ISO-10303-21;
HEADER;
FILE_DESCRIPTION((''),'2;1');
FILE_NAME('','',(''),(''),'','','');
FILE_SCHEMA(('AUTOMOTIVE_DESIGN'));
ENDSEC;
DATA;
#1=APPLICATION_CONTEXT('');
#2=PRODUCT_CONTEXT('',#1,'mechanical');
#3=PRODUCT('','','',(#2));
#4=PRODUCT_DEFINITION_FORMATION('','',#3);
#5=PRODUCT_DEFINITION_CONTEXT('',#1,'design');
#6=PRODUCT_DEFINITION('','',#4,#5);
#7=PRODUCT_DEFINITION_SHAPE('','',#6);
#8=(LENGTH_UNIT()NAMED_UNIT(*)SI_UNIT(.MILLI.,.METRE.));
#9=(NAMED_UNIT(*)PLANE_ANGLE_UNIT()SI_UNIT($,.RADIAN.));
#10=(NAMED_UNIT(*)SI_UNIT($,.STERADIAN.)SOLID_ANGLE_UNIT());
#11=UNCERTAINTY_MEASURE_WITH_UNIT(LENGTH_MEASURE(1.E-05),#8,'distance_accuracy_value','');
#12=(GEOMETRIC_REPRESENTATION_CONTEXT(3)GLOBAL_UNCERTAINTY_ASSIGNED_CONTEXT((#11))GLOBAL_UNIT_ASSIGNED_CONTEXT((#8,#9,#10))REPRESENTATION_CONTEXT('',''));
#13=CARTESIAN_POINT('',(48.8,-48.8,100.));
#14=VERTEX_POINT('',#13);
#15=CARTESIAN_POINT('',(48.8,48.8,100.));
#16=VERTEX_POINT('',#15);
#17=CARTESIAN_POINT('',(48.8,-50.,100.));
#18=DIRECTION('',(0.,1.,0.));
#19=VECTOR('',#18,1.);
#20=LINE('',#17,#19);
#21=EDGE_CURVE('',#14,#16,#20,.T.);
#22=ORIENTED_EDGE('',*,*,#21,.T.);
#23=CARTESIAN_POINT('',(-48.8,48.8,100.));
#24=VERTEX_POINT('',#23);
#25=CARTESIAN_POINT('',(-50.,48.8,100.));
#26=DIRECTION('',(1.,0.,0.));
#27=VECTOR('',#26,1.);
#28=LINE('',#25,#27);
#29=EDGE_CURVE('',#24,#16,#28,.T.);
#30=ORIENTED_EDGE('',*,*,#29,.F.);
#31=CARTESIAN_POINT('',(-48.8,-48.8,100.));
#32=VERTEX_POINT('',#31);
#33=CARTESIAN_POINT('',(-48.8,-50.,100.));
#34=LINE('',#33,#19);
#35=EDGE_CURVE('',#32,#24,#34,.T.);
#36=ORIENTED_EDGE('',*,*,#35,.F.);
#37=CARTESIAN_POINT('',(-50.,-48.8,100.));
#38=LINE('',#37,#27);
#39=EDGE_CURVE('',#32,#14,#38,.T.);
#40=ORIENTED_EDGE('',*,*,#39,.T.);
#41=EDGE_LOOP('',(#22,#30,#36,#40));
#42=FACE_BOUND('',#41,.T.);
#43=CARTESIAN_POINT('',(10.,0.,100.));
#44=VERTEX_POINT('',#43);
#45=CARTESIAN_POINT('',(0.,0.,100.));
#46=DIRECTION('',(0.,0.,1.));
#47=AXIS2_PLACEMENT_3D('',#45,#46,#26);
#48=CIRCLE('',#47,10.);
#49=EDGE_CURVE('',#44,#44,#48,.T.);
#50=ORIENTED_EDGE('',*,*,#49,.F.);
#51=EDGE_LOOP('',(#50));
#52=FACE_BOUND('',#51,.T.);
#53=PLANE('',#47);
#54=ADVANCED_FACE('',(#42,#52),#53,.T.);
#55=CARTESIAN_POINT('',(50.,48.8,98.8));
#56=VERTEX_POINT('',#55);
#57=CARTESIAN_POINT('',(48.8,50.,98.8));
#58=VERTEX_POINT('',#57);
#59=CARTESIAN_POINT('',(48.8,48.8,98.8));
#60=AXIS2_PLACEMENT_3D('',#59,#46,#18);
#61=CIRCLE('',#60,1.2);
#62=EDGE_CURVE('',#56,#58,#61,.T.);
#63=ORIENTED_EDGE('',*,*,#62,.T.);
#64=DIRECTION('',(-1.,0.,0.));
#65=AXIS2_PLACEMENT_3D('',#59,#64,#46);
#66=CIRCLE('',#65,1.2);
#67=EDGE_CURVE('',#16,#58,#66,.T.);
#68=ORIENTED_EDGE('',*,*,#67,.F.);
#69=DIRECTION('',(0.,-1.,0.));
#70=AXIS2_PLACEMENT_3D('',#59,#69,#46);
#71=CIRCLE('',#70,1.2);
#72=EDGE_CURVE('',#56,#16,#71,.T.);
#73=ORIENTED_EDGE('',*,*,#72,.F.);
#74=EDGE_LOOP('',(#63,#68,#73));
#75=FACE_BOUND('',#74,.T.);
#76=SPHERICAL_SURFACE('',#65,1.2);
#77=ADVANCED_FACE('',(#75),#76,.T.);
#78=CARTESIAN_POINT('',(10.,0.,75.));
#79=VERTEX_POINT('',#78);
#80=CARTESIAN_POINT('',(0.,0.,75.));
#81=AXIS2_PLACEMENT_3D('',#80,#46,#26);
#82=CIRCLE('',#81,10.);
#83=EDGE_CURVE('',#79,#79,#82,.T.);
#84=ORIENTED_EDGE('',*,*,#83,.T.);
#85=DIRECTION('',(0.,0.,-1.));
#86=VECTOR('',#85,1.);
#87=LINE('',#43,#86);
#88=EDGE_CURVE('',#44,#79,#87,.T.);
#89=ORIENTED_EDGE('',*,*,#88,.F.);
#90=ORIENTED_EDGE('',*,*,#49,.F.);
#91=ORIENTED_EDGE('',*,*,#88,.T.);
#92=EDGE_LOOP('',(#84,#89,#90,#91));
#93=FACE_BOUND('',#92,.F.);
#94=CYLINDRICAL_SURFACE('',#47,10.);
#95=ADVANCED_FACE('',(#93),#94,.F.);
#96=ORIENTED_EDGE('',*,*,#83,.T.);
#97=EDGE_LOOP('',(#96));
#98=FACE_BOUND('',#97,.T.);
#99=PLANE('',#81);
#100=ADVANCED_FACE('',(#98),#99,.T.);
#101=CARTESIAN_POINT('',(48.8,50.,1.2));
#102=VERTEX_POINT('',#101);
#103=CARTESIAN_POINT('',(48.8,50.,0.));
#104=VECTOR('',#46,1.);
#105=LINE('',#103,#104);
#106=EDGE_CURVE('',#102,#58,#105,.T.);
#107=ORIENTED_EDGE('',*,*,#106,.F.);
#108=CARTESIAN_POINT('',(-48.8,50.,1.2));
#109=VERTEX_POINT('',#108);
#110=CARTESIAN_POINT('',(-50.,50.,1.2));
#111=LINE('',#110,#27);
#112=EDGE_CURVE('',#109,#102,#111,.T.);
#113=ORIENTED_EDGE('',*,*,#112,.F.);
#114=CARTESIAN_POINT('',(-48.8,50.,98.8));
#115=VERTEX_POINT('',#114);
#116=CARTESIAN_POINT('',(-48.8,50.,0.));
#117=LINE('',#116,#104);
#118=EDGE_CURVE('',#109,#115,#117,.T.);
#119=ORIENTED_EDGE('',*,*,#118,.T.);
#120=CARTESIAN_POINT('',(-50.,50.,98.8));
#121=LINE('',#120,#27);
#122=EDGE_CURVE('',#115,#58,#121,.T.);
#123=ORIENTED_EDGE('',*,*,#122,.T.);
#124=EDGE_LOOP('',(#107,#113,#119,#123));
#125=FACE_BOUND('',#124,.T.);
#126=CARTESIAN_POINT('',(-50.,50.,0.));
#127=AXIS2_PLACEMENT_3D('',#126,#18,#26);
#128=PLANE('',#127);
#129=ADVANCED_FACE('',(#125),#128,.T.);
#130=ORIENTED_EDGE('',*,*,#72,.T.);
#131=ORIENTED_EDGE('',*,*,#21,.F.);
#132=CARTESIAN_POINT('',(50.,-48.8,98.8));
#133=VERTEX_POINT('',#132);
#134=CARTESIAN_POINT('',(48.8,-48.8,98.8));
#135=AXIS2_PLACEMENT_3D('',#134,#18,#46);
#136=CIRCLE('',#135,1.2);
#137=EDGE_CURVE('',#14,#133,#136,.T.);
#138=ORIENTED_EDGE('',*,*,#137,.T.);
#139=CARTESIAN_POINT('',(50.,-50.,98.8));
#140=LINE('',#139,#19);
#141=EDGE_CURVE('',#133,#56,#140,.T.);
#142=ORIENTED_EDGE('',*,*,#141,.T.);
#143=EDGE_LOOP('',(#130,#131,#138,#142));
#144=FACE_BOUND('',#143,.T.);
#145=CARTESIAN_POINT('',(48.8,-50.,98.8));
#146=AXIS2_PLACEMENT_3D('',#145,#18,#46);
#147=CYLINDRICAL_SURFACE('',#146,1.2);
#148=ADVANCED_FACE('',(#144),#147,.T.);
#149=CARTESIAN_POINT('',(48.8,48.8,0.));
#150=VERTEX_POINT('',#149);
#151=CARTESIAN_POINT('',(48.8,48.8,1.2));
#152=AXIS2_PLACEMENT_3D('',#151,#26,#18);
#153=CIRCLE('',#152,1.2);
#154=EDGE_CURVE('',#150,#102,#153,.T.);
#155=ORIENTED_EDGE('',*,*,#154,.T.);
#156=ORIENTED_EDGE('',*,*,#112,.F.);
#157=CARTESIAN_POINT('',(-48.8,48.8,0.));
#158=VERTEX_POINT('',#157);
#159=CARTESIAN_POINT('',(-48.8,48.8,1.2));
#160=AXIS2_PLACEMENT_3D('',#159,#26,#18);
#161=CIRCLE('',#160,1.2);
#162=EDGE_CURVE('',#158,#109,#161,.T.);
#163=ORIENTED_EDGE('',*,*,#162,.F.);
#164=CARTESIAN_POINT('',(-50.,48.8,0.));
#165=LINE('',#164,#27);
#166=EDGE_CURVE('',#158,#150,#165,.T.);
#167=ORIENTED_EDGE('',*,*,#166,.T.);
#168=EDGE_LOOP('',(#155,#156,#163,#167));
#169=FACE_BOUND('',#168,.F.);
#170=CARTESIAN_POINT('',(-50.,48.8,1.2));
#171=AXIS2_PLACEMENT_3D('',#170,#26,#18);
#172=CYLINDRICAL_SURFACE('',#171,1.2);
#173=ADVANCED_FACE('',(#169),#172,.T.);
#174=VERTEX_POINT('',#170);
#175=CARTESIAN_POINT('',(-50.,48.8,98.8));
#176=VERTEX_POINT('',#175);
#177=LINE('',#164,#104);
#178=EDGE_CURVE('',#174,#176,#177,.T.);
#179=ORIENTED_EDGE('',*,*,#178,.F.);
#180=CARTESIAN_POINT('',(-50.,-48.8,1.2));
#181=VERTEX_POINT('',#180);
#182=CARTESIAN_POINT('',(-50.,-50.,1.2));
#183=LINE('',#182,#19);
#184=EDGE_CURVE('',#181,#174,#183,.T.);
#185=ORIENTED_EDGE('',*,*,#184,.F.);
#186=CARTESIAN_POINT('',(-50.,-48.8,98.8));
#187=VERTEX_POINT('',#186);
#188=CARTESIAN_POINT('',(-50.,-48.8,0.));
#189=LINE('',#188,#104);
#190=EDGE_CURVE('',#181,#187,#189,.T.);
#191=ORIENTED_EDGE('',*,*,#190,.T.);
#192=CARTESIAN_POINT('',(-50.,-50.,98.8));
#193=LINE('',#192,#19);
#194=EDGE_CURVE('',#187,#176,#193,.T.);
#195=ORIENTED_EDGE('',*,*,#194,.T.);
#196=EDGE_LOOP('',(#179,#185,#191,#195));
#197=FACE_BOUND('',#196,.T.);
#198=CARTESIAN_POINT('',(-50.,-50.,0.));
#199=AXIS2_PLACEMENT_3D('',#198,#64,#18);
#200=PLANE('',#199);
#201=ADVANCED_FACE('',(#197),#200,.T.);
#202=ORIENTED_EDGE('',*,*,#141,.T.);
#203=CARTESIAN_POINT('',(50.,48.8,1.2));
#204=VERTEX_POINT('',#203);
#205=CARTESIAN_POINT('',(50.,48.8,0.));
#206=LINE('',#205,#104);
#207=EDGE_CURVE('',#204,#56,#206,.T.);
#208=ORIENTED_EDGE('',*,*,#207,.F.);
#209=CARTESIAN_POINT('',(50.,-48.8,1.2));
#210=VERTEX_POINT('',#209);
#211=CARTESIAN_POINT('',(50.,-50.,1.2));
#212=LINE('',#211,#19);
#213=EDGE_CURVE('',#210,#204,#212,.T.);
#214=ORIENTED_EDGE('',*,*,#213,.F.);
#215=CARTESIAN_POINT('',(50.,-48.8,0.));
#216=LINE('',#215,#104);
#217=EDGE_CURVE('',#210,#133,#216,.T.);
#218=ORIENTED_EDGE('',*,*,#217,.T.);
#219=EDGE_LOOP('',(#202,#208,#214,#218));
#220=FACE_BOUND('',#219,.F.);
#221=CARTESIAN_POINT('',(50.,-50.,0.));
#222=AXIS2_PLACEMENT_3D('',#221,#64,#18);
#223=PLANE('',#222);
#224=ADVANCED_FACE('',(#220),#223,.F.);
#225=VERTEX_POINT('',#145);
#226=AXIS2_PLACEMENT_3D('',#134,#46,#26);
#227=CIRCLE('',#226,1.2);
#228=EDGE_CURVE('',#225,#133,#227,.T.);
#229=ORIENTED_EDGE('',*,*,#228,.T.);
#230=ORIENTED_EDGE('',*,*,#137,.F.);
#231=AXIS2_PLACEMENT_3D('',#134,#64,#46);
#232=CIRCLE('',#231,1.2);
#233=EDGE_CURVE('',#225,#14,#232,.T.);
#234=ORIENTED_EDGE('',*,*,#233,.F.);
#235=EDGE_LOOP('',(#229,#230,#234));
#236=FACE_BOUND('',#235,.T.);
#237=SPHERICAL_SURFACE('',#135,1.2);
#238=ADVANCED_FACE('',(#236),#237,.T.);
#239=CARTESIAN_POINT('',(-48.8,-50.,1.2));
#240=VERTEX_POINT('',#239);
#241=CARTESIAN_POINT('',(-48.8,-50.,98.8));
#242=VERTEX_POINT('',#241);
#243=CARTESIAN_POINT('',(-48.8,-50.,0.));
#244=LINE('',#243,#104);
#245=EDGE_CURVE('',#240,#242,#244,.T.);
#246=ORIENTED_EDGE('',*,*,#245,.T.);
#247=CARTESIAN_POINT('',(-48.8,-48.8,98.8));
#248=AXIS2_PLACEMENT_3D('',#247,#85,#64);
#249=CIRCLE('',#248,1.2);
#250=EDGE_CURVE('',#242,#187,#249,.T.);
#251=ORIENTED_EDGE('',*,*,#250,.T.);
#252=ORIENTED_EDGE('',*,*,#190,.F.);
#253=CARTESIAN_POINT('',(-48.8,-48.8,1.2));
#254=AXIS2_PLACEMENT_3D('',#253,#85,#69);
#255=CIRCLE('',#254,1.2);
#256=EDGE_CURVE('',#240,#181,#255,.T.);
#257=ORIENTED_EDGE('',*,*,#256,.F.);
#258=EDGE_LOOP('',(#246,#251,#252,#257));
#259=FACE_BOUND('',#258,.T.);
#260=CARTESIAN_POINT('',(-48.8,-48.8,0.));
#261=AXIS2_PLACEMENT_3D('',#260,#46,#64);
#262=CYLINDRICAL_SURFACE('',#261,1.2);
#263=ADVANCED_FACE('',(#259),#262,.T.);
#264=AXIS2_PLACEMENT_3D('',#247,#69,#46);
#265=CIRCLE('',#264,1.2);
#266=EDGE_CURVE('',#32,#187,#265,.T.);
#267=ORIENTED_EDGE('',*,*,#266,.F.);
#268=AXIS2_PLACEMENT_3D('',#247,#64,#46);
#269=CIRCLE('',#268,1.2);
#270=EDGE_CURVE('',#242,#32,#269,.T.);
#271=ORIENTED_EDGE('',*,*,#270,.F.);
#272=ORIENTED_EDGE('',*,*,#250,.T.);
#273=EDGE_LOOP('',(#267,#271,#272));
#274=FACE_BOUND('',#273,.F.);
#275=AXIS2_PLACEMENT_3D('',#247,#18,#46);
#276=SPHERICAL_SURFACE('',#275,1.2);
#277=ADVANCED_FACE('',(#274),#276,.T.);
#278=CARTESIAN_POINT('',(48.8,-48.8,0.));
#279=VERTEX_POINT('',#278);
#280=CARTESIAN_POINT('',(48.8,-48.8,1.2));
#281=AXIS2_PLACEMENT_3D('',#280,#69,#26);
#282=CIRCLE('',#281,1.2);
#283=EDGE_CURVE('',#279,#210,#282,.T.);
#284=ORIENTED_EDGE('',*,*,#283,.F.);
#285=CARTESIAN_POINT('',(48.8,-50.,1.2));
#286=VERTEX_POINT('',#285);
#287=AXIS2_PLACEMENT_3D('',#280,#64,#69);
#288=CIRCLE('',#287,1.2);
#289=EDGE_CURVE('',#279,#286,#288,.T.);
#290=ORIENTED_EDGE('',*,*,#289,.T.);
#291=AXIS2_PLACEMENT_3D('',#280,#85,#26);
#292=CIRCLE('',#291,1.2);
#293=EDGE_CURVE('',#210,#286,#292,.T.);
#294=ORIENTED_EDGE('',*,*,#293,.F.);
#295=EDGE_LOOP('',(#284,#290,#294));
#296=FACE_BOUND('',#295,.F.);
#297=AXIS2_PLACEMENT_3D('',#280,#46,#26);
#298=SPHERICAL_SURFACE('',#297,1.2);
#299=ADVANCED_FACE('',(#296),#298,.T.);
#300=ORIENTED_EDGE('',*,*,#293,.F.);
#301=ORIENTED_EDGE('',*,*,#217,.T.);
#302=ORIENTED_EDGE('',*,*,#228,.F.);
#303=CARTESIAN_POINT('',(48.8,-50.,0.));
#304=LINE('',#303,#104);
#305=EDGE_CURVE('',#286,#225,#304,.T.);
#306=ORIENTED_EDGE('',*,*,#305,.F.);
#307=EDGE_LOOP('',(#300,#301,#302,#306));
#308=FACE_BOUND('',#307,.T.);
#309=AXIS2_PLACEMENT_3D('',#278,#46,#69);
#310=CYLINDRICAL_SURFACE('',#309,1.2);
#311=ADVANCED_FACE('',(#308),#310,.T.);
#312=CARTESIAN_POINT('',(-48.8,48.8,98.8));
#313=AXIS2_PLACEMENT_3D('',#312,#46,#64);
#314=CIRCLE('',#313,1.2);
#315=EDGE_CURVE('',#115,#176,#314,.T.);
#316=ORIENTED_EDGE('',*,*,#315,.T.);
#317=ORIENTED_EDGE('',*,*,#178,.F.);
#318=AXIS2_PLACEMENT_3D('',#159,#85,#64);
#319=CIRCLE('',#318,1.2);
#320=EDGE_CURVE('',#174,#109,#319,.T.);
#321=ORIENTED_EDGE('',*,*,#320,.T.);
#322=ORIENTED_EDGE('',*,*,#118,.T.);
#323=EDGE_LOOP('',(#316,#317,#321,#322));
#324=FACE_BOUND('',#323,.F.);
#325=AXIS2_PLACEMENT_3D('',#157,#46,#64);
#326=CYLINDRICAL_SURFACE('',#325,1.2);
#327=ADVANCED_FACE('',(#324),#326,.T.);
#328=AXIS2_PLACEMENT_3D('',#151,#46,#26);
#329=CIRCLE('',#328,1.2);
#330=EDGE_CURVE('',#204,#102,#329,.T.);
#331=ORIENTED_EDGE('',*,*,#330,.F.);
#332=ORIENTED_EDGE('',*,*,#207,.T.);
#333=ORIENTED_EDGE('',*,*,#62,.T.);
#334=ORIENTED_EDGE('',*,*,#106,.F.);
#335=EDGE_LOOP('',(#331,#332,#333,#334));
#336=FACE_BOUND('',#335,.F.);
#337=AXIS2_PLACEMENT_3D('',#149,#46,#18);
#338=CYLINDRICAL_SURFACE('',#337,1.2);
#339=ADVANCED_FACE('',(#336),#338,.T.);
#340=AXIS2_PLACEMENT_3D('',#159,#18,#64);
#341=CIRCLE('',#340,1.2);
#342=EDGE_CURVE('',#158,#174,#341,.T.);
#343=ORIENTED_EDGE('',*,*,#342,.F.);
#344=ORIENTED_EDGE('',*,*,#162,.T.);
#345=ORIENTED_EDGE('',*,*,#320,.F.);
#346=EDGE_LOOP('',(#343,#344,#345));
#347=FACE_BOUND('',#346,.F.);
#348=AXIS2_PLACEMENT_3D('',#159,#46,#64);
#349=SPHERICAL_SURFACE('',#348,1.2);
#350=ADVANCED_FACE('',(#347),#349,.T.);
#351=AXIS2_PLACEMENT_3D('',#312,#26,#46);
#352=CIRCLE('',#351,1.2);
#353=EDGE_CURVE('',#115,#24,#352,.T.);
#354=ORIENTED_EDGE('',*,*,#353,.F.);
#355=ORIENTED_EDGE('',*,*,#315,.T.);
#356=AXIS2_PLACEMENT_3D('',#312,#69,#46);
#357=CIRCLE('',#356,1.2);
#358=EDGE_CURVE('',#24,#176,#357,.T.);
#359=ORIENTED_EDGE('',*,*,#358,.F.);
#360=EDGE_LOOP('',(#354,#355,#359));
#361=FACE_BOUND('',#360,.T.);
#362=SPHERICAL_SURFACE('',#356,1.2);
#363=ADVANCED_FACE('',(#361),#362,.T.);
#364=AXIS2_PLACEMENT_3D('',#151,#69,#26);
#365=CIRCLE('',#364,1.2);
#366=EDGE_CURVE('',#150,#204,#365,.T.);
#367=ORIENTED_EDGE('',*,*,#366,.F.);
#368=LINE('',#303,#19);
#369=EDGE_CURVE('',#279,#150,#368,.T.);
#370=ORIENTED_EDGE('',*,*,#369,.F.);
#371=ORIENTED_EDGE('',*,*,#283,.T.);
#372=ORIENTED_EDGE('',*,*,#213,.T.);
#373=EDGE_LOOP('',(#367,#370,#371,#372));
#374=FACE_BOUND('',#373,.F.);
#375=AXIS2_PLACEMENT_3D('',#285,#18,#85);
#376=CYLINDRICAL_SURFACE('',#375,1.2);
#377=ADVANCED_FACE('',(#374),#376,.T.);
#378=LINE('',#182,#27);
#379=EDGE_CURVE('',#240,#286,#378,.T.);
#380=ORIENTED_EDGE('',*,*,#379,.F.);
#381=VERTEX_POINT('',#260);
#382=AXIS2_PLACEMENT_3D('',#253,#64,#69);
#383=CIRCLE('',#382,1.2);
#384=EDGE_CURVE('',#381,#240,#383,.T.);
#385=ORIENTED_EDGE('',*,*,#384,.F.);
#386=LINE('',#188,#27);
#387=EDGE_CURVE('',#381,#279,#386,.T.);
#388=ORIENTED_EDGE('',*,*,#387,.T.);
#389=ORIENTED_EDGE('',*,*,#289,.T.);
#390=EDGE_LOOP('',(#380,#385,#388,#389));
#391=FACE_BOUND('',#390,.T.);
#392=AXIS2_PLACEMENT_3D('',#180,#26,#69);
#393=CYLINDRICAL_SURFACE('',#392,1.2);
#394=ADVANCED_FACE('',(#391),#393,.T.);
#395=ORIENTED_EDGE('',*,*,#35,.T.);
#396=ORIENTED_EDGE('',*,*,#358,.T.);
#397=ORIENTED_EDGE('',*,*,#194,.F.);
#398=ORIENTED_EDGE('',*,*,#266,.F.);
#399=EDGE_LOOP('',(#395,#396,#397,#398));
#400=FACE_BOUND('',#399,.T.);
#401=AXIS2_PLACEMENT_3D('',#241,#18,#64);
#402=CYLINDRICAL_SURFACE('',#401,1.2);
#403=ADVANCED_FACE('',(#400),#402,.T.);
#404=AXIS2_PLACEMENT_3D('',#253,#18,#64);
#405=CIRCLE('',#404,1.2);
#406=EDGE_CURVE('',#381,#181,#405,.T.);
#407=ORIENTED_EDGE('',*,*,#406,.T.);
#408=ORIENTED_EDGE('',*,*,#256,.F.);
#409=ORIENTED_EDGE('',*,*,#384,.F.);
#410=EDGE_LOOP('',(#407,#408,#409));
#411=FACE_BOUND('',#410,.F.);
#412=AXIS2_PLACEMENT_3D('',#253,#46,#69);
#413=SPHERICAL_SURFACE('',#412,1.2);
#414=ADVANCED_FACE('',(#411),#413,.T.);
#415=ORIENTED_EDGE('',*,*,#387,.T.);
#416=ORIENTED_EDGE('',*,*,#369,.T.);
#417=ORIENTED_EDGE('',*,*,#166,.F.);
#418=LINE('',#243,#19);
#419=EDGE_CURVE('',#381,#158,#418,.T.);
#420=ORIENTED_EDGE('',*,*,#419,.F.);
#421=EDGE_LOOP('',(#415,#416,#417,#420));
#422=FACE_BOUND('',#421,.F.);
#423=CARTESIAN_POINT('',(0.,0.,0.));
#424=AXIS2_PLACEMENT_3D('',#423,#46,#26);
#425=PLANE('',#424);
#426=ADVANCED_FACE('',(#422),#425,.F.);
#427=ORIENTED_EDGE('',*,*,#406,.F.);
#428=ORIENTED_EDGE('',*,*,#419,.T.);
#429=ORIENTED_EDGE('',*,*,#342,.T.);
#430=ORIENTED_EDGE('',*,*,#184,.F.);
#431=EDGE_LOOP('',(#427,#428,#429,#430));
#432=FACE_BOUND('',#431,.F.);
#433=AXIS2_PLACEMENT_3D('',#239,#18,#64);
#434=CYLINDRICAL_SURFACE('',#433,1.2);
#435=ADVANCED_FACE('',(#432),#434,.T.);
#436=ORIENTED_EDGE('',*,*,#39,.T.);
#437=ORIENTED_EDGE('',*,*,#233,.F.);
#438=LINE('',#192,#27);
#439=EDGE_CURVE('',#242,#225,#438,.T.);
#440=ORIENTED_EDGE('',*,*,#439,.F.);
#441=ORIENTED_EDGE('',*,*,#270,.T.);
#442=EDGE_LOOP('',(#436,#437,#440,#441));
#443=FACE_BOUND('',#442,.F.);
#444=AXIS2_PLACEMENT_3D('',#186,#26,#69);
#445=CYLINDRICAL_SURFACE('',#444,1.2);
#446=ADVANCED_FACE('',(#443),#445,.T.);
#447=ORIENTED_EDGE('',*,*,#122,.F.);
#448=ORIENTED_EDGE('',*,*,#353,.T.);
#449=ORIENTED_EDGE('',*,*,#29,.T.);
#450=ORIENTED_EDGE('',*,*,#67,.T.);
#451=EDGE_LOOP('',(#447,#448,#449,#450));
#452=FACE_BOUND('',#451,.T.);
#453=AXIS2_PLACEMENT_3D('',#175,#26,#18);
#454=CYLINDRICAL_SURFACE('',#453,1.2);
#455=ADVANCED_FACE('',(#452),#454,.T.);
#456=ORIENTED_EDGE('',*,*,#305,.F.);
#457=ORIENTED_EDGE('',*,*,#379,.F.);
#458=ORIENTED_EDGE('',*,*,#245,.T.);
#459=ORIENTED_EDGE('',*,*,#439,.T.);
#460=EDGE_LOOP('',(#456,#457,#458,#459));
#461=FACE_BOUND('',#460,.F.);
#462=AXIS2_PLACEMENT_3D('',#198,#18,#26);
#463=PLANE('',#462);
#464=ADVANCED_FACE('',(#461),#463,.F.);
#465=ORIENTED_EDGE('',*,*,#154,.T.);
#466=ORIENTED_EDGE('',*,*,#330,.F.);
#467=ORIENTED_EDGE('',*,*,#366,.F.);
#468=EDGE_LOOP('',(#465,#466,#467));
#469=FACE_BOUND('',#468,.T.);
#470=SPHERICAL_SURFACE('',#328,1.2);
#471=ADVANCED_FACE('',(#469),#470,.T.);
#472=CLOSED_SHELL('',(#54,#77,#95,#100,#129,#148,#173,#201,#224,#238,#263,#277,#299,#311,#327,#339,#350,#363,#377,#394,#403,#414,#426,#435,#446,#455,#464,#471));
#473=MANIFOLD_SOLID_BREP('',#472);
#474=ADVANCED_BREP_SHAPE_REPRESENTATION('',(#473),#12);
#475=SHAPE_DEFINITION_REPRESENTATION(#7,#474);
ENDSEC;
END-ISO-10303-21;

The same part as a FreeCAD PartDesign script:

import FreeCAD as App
import Part
import Sketcher

V = App.Vector
Q = App.Units.Quantity


def edges_at(feature, points):
    """Names of the edges that pass closest to the given points."""
    edges = feature.Shape.Edges
    near = lambda p: min(range(len(edges)), key=lambda i: edges[i].distToShape(Part.Vertex(*p))[0])
    return sorted({f"Edge{near(p) + 1}" for p in points})

doc = App.newDocument("Part")
body = doc.addObject("PartDesign::Body", "Body")

# Sketch on XY plane
sketch1 = doc.addObject("Sketcher::SketchObject", "Sketch")
body.addObject(sketch1)
sketch1.AttachmentSupport = (doc.XY_Plane, [""])
sketch1.MapMode = "FlatFace"
sketch1.addGeometry([
    Part.LineSegment(V(-50, 50, 0), V(-50, -50, 0)),
    Part.LineSegment(V(-50, -50, 0), V(50, -50, 0)),
    Part.LineSegment(V(50, -50, 0), V(50, 50, 0)),
    Part.LineSegment(V(50, 50, 0), V(-50, 50, 0)),
], False)
sketch1.addConstraint([
    Sketcher.Constraint("Coincident", 0, 2, 1, 1),
    Sketcher.Constraint("Coincident", 1, 2, 2, 1),
    Sketcher.Constraint("Coincident", 2, 2, 3, 1),
    Sketcher.Constraint("Coincident", 3, 2, 0, 1),
    Sketcher.Constraint("Vertical", 0),
    Sketcher.Constraint("Horizontal", 1),
    Sketcher.Constraint("Vertical", 2),
    Sketcher.Constraint("Horizontal", 3),
    Sketcher.Constraint("Symmetric", 0, 2, 2, 2, -1, 1),
    Sketcher.Constraint("Equal", 3, 0),
    Sketcher.Constraint("DistanceX", 1, 1, 1, 2, Q("100 mm")),
])
pad1 = doc.addObject("PartDesign::Pad", "Pad")
body.addObject(pad1)
pad1.Profile = sketch1
pad1.Length = 100

# Sketch on XY plane
sketch2 = doc.addObject("Sketcher::SketchObject", "Sketch001")
body.addObject(sketch2)
sketch2.AttachmentSupport = (doc.XY_Plane, [""])
sketch2.MapMode = "FlatFace"
sketch2.AttachmentOffset = App.Placement(V(0, 0, 100), App.Rotation())
sketch2.addGeometry(Part.Circle(V(0, 0, 0), V(0, 0, 1), 10), False)
sketch2.addConstraint([
    Sketcher.Constraint("Coincident", 0, 3, -1, 1),
    Sketcher.Constraint("Diameter", 0, Q("20 mm")),
])
pocket1 = doc.addObject("PartDesign::Pocket", "Pocket")
body.addObject(pocket1)
pocket1.Profile = sketch2
pocket1.Length = 25
doc.recompute()

fillet = doc.addObject("PartDesign::Fillet", "Fillet")
body.addObject(fillet)
fillet.Base = (pocket1, edges_at(pocket1, [
    (-50, 0, 100),
    (0, 50, 100),
    (50, 0, 100),
    (0, -50, 100),
    (-50, -50, 50),
    (-50, 50, 50),
    (50, -50, 50),
    (50, 50, 50),
    (50, 0, 0),
    (0, -50, 0),
    (-50, 0, 0),
    (0, 50, 0),
]))
fillet.Radius = 1.2

doc.recompute()
